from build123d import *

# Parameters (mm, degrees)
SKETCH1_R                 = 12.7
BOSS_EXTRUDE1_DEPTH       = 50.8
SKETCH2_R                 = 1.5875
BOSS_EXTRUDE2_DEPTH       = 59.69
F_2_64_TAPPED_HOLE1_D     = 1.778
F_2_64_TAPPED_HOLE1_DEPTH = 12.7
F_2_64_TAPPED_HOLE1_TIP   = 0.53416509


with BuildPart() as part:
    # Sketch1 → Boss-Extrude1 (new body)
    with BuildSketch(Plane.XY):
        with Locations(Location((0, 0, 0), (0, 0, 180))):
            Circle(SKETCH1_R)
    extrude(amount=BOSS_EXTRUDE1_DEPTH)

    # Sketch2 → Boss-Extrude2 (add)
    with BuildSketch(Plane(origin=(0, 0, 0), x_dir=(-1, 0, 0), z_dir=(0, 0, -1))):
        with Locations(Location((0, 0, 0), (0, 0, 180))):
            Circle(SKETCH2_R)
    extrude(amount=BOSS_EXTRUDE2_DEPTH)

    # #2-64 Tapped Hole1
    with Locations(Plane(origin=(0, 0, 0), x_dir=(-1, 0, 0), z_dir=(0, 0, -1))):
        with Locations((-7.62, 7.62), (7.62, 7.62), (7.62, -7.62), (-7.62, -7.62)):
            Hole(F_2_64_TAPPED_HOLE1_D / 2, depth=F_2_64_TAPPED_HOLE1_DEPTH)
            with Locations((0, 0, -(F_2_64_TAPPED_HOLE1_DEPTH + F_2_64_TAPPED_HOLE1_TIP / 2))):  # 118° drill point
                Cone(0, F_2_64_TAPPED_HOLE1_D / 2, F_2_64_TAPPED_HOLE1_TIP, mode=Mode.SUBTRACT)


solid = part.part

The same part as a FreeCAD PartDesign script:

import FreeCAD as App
import Part
import Sketcher
from FreeCAD import Vector
Q = App.Units.Quantity

doc = App.newDocument("Part")
body = doc.addObject("PartDesign::Body", "Body")

# Sketch on XY plane
sketch1 = body.newObject("Sketcher::SketchObject", "Sketch")
sketch1.AttachmentSupport = (doc.getObject("XY_Plane"), [""])
sketch1.MapMode = "FlatFace"
sketch1.addGeometry(Part.Circle(Vector(0, 0, 0), Vector(0, 0, 1), 13), False)
sketch1.addConstraint([
    Sketcher.Constraint("Coincident", 0, 3, -1, 1),
    Sketcher.Constraint("Diameter", 0, Q("1 in")),
])
pad1 = body.newObject("PartDesign::Pad", "Pad")
pad1.Profile = sketch1
pad1.Length = Q("2 in")

# Sketch on XY plane
sketch2 = body.newObject("Sketcher::SketchObject", "Sketch001")
sketch2.AttachmentSupport = (doc.getObject("XY_Plane"), [""])
sketch2.MapMode = "FlatFace"
sketch2.addGeometry(Part.Circle(Vector(0, 0, 0), Vector(0, 0, 1), 1.6), False)
sketch2.addConstraint([
    Sketcher.Constraint("Coincident", 0, 3, -1, 1),
    Sketcher.Constraint("Diameter", 0, Q("0.125 in")),
])
pad2 = body.newObject("PartDesign::Pad", "Pad001")
pad2.Profile = sketch2
pad2.Length = Q("2.35 in")
pad2.Reversed = True

# Sketch on XY plane
sketch3 = body.newObject("Sketcher::SketchObject", "Sketch002")
sketch3.AttachmentSupport = (doc.getObject("XY_Plane"), [""])
sketch3.MapMode = "FlatFace"
sketch3.addGeometry([
    Part.Circle(Vector(7.6, 7.6, 0), Vector(0, 0, 1), 0.9),
    Part.Circle(Vector(-7.6, 7.6, 0), Vector(0, 0, 1), 0.9),
    Part.Circle(Vector(-7.6, -7.6, 0), Vector(0, 0, 1), 0.9),
    Part.Circle(Vector(7.6, -7.6, 0), Vector(0, 0, 1), 0.9),
], False)
sketch3.addConstraint([
    Sketcher.Constraint("Equal", 0, 1),
    Sketcher.Constraint("Equal", 1, 2),
    Sketcher.Constraint("Equal", 2, 3),
    Sketcher.Constraint("Symmetric", 0, 3, 2, 3, -1, 1),
    Sketcher.Constraint("Symmetric", 1, 3, 3, 3, -1, 1),
    Sketcher.Constraint("Symmetric", 0, 3, 1, 3, -2),
    Sketcher.Constraint("Diameter", 0, Q("0.07 in")),
    Sketcher.Constraint("DistanceX", -1, 1, 0, 3, Q("0.3 in")),
    Sketcher.Constraint("DistanceY", -1, 1, 0, 3, Q("0.3 in")),
])
doc.recompute()
hole = body.newObject("PartDesign::Hole", "Hole")
hole.Profile = sketch3
hole.ThreadType = "None"
hole.Diameter = Q("0.07 in")
hole.DepthType = "Dimension"
hole.Depth = Q("0.5 in")
hole.DrillPoint = "Angled"
hole.DrillPointAngle = 118
hole.Reversed = True

doc.recompute()
